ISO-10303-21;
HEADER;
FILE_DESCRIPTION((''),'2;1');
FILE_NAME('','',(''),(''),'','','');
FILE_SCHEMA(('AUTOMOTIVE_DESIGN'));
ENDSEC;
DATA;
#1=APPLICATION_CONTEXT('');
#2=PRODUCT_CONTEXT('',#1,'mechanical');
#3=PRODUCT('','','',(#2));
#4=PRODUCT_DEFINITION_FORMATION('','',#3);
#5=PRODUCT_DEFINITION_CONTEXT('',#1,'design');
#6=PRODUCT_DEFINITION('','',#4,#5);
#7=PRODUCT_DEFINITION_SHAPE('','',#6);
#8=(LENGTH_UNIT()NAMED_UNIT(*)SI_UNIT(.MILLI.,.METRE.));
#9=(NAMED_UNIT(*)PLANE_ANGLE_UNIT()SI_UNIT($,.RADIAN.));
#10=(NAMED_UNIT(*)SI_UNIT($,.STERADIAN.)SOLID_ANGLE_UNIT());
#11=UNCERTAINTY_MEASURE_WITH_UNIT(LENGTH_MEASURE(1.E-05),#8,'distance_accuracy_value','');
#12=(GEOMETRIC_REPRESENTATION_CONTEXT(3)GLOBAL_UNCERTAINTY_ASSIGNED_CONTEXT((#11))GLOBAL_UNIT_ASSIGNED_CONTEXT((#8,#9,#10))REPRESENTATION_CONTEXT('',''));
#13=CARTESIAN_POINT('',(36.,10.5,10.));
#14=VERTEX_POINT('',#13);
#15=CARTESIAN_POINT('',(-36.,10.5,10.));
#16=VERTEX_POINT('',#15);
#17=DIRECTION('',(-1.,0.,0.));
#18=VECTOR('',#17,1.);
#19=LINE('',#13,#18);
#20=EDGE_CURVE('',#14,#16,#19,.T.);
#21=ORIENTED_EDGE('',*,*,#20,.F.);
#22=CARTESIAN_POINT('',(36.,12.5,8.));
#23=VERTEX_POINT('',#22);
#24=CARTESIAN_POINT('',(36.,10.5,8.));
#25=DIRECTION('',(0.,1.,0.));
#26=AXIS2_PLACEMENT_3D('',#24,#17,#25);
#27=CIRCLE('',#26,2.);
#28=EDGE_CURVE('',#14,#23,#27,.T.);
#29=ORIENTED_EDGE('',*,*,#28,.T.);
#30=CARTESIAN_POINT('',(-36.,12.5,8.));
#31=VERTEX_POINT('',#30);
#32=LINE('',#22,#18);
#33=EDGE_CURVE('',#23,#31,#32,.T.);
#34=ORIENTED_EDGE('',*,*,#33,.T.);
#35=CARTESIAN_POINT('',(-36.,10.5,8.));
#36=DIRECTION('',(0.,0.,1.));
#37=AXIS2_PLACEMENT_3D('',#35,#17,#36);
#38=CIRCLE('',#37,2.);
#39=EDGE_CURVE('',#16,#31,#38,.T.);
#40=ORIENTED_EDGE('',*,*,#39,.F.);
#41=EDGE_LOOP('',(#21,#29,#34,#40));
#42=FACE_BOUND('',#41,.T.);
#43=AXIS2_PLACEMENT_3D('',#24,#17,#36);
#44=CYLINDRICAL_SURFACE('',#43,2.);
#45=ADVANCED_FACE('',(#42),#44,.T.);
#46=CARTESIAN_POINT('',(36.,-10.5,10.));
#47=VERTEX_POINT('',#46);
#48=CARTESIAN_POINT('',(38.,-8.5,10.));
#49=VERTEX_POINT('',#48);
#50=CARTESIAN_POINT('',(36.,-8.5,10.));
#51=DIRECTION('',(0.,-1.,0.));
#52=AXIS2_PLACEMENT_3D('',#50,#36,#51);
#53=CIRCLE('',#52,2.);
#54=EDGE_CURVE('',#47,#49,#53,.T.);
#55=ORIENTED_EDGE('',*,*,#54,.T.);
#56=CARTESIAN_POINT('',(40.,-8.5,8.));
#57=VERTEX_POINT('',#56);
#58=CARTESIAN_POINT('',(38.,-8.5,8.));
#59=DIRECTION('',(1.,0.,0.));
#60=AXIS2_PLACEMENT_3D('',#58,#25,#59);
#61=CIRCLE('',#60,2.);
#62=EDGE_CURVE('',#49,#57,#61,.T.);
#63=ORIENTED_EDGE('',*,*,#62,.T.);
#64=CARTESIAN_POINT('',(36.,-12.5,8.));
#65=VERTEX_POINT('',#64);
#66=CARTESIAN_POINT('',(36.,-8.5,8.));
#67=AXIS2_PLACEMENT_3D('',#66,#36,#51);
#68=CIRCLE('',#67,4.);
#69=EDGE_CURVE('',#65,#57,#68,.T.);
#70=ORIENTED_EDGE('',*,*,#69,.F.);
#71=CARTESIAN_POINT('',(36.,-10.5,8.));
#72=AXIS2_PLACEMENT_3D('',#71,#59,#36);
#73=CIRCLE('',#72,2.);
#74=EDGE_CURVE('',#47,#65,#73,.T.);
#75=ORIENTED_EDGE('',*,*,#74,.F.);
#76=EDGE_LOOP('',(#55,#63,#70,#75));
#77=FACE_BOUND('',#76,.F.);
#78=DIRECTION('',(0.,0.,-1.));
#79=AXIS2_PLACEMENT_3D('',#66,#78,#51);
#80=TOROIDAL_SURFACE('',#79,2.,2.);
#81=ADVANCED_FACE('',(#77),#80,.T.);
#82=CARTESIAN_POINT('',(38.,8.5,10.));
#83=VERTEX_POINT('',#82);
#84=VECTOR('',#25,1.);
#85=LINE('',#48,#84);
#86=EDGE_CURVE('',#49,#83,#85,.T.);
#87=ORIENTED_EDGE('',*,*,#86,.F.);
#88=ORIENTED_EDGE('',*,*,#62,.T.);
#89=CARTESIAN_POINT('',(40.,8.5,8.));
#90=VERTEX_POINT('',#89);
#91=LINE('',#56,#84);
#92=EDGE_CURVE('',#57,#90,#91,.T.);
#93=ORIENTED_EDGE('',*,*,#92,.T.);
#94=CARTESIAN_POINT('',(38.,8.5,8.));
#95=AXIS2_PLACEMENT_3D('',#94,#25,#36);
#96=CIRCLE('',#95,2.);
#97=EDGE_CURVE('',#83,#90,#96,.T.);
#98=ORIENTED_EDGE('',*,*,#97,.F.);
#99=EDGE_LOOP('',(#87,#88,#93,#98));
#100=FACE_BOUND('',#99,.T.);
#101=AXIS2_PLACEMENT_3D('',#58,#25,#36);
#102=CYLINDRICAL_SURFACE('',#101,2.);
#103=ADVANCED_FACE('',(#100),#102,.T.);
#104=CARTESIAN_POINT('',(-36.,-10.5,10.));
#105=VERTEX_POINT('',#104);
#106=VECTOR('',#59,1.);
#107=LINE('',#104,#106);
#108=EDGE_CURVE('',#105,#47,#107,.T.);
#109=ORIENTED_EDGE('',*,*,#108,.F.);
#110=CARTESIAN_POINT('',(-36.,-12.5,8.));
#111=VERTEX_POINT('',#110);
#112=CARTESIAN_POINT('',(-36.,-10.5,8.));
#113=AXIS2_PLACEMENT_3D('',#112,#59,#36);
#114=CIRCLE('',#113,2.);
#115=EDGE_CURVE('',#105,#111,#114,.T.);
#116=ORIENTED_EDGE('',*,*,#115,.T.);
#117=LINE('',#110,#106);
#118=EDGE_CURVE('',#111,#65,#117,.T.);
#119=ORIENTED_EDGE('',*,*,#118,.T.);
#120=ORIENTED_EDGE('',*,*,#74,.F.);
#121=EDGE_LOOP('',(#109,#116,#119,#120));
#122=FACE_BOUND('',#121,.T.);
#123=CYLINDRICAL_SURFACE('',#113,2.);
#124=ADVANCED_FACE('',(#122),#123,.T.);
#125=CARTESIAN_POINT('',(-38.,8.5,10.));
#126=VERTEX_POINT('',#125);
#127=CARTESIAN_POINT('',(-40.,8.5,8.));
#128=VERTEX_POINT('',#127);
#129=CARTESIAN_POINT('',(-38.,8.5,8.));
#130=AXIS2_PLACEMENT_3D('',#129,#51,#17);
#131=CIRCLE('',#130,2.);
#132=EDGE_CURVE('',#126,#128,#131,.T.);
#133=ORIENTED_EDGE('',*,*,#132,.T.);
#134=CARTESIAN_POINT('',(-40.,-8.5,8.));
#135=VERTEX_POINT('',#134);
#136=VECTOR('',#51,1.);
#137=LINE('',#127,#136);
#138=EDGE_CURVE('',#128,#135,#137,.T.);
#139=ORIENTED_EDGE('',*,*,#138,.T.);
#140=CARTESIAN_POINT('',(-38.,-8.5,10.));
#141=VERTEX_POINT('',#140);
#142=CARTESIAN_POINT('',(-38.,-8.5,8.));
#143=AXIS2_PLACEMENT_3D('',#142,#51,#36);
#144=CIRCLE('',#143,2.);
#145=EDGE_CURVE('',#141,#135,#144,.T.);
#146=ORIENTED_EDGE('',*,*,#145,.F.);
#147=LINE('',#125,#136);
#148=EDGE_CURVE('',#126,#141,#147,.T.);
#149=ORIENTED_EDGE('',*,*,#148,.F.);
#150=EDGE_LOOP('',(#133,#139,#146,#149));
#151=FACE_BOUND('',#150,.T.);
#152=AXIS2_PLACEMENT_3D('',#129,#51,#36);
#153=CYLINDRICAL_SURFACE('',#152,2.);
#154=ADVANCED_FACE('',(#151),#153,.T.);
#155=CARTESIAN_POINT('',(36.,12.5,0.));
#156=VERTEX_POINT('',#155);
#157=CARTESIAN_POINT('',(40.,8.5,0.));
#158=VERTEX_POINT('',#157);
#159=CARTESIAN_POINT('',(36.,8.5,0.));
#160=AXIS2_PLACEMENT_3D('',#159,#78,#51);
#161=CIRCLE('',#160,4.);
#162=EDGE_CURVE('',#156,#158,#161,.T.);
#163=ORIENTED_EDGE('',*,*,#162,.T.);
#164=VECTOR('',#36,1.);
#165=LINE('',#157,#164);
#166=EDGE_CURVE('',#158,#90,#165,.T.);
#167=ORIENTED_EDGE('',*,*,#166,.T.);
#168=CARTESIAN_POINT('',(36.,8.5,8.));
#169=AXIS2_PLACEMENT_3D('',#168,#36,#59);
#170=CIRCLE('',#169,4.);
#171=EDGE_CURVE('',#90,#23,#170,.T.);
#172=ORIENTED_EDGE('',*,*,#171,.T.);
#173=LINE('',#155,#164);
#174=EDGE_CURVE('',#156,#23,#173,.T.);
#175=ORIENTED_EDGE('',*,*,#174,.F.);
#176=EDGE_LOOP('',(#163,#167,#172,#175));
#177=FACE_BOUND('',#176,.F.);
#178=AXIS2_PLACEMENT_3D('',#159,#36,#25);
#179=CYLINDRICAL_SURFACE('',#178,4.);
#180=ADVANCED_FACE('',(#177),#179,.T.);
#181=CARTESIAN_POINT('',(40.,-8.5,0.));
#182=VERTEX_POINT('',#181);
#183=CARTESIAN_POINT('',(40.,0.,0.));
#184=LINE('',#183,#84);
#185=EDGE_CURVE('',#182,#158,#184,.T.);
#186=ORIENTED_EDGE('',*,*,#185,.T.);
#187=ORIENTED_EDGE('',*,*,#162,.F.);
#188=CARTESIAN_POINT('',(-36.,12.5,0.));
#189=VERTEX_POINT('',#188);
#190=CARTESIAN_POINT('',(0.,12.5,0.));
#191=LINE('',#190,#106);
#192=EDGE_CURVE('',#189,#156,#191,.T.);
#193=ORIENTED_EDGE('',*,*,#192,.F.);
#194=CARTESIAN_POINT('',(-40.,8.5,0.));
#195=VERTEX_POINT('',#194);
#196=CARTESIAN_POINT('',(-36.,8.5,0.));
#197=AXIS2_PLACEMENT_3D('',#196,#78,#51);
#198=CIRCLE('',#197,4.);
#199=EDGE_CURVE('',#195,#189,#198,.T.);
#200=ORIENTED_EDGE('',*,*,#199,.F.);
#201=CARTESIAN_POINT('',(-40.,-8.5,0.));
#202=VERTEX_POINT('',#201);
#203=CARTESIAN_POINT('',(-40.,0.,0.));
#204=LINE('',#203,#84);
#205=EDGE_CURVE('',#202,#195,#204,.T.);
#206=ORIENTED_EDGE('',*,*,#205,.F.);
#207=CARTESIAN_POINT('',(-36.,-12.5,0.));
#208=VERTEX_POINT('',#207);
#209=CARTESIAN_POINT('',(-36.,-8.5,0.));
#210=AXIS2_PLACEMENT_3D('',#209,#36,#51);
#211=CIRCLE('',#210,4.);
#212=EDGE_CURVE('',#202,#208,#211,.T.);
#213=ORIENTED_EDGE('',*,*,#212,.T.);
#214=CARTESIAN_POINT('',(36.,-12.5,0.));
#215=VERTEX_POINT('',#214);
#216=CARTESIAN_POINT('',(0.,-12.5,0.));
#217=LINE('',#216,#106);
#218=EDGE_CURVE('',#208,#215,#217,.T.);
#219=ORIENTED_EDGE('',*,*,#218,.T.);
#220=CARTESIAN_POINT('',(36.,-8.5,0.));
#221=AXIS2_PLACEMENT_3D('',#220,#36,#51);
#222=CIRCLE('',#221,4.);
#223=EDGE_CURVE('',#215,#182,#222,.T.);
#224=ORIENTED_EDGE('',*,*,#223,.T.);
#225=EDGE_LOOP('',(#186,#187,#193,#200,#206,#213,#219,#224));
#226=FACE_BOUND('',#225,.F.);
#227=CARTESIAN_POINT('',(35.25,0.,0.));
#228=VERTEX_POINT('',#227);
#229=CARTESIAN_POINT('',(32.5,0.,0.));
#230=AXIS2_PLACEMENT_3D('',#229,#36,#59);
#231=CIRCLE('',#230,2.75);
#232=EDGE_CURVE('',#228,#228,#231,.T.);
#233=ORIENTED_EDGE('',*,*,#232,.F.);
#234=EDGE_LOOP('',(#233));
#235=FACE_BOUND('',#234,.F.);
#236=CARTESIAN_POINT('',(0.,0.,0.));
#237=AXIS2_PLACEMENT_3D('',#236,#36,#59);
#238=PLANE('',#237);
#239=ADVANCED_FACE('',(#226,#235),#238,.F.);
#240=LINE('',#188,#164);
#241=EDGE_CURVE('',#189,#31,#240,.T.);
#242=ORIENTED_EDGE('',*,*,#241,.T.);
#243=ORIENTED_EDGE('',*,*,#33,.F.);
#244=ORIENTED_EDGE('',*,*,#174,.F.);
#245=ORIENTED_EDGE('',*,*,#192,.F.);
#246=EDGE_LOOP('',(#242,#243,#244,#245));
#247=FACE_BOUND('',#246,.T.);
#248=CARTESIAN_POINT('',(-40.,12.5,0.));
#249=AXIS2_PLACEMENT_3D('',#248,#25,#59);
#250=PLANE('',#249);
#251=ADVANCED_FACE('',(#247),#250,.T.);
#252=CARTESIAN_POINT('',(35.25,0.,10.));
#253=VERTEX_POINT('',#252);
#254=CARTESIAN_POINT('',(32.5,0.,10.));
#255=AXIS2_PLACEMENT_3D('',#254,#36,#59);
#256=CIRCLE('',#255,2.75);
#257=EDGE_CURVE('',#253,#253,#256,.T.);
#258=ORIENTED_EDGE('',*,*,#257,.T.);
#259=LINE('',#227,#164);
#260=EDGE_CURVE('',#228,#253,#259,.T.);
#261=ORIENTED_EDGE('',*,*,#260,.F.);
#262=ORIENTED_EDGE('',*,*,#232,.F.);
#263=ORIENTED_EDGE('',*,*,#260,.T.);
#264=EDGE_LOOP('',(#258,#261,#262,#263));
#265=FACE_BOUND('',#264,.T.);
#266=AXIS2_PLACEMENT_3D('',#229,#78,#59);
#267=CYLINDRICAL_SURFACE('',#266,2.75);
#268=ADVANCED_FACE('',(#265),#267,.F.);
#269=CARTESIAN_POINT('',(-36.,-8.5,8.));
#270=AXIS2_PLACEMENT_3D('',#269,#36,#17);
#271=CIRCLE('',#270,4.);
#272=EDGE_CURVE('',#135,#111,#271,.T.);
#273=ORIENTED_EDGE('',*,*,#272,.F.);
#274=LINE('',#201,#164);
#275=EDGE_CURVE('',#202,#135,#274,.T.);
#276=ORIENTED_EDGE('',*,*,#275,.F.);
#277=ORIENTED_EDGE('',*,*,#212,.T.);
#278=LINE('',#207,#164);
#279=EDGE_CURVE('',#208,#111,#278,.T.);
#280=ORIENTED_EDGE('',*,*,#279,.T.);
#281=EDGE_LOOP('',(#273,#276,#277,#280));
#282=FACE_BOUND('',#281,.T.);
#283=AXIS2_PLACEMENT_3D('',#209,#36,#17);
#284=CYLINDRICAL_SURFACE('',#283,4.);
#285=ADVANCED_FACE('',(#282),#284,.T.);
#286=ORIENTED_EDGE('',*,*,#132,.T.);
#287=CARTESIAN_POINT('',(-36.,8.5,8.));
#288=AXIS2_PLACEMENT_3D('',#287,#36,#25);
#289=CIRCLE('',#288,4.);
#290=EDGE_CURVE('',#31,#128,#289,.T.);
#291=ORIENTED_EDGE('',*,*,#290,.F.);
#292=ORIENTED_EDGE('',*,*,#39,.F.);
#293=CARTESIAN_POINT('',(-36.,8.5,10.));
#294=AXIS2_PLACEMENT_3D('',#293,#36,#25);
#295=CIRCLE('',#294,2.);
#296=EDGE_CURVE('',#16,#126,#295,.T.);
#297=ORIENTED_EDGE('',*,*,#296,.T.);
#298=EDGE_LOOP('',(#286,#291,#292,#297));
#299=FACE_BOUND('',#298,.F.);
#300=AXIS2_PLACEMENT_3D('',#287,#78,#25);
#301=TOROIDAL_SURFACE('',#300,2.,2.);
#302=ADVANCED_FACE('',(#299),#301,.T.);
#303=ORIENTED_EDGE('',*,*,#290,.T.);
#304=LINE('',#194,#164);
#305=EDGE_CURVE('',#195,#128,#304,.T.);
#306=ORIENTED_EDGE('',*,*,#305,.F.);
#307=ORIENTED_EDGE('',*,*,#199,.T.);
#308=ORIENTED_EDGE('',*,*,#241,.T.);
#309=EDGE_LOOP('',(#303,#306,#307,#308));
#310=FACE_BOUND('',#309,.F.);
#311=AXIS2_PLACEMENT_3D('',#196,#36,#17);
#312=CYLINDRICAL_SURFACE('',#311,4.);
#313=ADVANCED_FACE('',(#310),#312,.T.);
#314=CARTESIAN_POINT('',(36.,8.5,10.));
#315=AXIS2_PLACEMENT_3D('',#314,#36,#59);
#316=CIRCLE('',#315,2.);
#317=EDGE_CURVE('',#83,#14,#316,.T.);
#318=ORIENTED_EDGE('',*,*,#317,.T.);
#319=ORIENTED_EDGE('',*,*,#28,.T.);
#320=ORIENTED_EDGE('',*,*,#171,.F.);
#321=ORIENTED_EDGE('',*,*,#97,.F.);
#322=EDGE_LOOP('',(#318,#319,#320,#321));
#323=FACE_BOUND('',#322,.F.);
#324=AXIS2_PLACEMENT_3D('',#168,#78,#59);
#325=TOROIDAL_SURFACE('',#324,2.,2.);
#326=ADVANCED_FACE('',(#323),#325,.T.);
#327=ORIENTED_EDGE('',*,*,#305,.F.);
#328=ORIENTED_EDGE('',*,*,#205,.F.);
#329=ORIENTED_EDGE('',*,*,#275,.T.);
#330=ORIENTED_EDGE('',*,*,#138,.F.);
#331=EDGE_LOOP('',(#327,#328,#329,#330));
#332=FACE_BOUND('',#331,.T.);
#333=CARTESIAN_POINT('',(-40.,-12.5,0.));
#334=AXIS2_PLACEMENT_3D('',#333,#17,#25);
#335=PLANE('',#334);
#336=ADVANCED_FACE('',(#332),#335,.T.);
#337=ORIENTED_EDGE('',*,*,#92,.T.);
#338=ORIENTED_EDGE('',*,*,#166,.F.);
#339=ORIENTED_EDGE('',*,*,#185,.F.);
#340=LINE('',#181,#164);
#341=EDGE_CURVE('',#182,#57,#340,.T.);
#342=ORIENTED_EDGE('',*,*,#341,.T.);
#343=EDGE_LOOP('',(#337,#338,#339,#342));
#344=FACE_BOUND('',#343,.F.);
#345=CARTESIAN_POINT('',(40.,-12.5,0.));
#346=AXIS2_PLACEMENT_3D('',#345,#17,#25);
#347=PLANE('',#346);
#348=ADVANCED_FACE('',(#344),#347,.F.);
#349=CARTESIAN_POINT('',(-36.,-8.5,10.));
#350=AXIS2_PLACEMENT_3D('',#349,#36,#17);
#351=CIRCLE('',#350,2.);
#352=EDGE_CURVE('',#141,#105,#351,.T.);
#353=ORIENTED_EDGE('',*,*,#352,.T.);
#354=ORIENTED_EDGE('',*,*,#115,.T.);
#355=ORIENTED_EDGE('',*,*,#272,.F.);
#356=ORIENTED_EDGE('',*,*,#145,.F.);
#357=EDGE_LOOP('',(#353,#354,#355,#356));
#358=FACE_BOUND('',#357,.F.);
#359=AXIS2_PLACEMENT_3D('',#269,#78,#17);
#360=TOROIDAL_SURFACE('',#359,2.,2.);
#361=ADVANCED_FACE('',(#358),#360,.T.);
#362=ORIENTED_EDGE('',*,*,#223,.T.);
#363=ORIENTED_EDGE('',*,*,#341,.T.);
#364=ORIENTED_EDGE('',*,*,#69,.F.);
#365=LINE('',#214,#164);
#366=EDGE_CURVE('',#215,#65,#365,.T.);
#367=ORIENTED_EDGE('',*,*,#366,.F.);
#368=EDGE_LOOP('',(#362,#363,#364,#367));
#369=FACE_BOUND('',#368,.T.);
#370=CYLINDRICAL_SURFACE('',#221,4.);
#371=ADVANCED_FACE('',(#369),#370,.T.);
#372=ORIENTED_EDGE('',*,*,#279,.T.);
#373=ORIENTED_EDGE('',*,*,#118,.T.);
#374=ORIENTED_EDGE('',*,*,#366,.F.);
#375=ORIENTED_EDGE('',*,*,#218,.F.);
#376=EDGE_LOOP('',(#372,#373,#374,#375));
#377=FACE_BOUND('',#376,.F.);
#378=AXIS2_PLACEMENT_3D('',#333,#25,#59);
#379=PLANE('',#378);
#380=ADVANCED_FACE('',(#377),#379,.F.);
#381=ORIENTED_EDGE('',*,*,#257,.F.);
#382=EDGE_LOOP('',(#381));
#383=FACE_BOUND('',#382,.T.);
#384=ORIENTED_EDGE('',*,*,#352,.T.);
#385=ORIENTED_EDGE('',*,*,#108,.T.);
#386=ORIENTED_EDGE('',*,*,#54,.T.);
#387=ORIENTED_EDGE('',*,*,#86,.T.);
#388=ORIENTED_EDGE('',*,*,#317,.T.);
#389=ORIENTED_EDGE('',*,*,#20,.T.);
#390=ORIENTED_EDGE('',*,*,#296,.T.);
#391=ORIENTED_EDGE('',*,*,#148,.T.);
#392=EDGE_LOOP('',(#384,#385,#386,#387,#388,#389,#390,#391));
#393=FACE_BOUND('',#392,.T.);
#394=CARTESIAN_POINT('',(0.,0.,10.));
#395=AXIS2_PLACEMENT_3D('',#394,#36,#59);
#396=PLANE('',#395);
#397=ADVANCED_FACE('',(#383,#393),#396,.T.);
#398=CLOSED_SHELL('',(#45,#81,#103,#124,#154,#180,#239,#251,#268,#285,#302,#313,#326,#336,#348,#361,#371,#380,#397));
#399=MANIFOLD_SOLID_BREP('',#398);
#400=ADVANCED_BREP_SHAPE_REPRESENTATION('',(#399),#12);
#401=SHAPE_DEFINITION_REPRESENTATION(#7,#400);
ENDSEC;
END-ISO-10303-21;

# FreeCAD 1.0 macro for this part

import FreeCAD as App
import Part
import Sketcher
from FreeCAD import Vector
Q = App.Units.Quantity


def edges_at(feature, points):
    """Names of the edges that pass closest to the given points."""
    edges = feature.Shape.Edges
    near = lambda p: min(range(len(edges)), key=lambda i: edges[i].distToShape(Part.Vertex(*p))[0])
    return sorted({f"Edge{near(p) + 1}" for p in points})


def add_polygon(sketch, points):
    """Adds a closed chain of lines whose ends are joined by coincident constraints."""
    first, n = sketch.GeometryCount, len(points)
    for a, b in zip(points, points[1:] + points[:1]):
        sketch.addGeometry(Part.LineSegment(App.Vector(*a, 0), App.Vector(*b, 0)), False)
    for i in range(n):
        sketch.addConstraint(Sketcher.Constraint("Coincident", first + i, 2, first + (i + 1) % n, 1))

doc = App.newDocument("Part")
body = doc.addObject("PartDesign::Body", "Body")

sketch1 = doc.addObject("Sketcher::SketchObject", "Sketch")
body.addObject(sketch1)
sketch1.AttachmentSupport = (doc.XY_Plane, [""])
sketch1.MapMode = "FlatFace"
add_polygon(sketch1, [(-40, 12.5), (-40, -12.5), (40, -12.5), (40, 12.5)])
sketch1.addGeometry(Part.Circle(Vector(32.5, 0, 0), Vector(0, 0, 1), 2.8), False)
sketch1.addConstraint([
    Sketcher.Constraint("Vertical", 0),
    Sketcher.Constraint("Horizontal", 1),
    Sketcher.Constraint("Vertical", 2),
    Sketcher.Constraint("Horizontal", 3),
    Sketcher.Constraint("Symmetric", 0, 2, 2, 2, -1, 1),
    Sketcher.Constraint("PointOnObject", 4, 3, -1),
    Sketcher.Constraint("Diameter", 4, Q("5.5 mm")),
    Sketcher.Constraint("DistanceX", 1, 1, 1, 2, Q("80 mm")),
    Sketcher.Constraint("DistanceY", 0, 2, 0, 1, Q("25 mm")),
    Sketcher.Constraint("DistanceX", -1, 1, 4, 3, Q("32.5 mm")),
])
pad1 = doc.addObject("PartDesign::Pad", "Pad")
body.addObject(pad1)
pad1.Profile = sketch1
pad1.Length = 10
doc.recompute()

fillet = doc.addObject("PartDesign::Fillet", "Fillet")
body.addObject(fillet)
fillet.Base = (pad1, edges_at(pad1, [
    (40, -12.5, 5),
    (-40, -12.5, 5),
    (40, 12.5, 5),
    (-40, 12.5, 5),
]))
fillet.Radius = 4
doc.recompute()

fillet2 = doc.addObject("PartDesign::Fillet", "Fillet001")
body.addObject(fillet2)
fillet2.Base = (fillet, edges_at(fillet, [(0, -12.5, 10)]))
fillet2.Radius = 2

doc.recompute()
